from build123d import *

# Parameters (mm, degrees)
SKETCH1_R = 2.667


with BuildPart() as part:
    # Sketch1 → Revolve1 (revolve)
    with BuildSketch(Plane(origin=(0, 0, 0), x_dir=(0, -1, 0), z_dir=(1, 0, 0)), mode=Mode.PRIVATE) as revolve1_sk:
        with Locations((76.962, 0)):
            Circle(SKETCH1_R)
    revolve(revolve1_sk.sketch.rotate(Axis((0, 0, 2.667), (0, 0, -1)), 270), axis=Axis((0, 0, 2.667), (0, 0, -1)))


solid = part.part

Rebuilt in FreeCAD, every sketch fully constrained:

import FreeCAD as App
import Part
import Sketcher
Q = App.Units.Quantity

doc = App.newDocument("Part")
body = doc.addObject("PartDesign::Body", "Body")

# Sketch on YZ plane
sketch1 = body.newObject("Sketcher::SketchObject", "Sketch")
sketch1.AttachmentSupport = (doc.getObject("YZ_Plane"), [""])
sketch1.MapMode = "FlatFace"
sketch1.addGeometry(Part.Circle(App.Vector(-76.962, 0, 0), App.Vector(0, 0, 1), 2.667), False)
sketch1.addConstraint([
    Sketcher.Constraint("PointOnObject", 0, 3, -1),
    Sketcher.Constraint("Diameter", 0, Q("0.21 in")),
    Sketcher.Constraint("DistanceX", 0, 3, -1, 1, Q("3.03 in")),
])
revolution = body.newObject("PartDesign::Revolution", "Revolution")
revolution.Profile = sketch1
revolution.ReferenceAxis = (sketch1, ["V_Axis"])
revolution.Angle = 360

doc.recompute()
